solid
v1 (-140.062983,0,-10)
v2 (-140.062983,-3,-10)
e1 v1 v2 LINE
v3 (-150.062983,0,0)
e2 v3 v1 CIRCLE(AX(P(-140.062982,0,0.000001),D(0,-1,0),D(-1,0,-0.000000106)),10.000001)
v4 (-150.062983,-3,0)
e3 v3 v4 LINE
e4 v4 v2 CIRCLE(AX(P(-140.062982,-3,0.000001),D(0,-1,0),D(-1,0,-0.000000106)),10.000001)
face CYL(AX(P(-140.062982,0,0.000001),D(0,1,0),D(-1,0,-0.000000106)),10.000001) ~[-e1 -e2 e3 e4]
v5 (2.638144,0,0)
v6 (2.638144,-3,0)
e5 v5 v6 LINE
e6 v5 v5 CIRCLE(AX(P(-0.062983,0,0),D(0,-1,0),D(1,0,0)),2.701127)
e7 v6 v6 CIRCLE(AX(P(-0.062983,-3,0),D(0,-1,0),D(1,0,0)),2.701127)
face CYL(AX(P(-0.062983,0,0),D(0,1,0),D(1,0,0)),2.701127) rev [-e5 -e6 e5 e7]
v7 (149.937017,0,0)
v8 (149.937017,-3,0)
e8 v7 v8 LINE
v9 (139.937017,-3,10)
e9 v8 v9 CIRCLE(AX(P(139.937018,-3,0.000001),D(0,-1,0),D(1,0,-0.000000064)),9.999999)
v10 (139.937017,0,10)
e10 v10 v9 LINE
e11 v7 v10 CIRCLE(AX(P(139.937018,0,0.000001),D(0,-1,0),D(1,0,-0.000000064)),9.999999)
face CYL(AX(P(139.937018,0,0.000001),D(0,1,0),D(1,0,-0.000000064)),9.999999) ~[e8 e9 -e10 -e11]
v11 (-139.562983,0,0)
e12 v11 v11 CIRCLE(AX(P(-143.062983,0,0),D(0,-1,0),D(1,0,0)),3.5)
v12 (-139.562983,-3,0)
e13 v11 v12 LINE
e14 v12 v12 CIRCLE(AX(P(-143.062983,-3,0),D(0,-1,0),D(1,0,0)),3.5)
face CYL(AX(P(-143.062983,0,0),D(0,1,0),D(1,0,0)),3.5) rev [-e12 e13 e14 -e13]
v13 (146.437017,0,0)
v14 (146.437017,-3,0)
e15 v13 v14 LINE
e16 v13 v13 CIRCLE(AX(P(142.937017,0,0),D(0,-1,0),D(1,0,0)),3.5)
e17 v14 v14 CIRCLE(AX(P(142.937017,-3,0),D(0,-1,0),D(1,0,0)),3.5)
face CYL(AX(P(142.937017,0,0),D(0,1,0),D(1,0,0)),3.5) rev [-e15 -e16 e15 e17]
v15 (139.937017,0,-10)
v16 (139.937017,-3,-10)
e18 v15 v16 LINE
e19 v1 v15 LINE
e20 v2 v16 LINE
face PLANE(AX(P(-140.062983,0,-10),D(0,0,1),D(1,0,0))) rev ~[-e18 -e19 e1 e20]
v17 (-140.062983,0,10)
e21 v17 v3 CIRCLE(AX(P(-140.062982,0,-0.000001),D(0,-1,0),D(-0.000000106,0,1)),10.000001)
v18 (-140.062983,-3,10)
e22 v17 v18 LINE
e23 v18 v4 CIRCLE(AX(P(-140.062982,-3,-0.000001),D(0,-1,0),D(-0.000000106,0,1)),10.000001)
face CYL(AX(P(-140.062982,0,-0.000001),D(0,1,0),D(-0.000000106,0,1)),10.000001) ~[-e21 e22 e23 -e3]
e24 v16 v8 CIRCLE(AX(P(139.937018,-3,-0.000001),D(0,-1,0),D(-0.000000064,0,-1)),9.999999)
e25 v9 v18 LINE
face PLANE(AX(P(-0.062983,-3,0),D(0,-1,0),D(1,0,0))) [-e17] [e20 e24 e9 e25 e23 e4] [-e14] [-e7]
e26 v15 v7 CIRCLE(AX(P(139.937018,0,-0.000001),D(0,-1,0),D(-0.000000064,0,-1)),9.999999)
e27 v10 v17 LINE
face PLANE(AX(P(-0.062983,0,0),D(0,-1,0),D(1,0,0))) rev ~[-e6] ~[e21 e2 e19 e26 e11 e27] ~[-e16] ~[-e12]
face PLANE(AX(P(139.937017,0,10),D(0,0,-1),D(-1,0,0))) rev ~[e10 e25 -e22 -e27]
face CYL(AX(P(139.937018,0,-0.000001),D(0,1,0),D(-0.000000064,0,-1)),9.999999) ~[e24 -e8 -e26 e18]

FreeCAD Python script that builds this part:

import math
import FreeCAD as App
import Part
import Sketcher

V = App.Vector
Q = App.Units.Quantity

doc = App.newDocument("Part")
params = doc.addObject("Spreadsheet::Sheet", "Params")
for row, (alias, value) in enumerate([
    ("sketch1_diameter", "7 mm"),
    ("sketch1_radius", "10.000001 mm"),
    ("sketch1_width", "280 mm"),
    ("pad1_length", "3 mm"),
], start=1):
    params.set(f"A{row}", alias)
    params.set(f"B{row}", "=" + value)
    params.setAlias(f"B{row}", alias)

body = doc.addObject("PartDesign::Body", "Body")

# Sketch on XZ plane
sketch1 = body.newObject("Sketcher::SketchObject", "Sketch")
sketch1.AttachmentSupport = (doc.getObject("XZ_Plane"), [""])
sketch1.MapMode = "FlatFace"
sketch1.addGeometry(Part.LineSegment(V(139.937017, 10, 0), V(-140.062983, 10, 0)), False)
sketch1.addGeometry(Part.ArcOfCircle(Part.Circle(V(-140.062982, -0.000001, 0), V(0, 0, 1), 10.000001), math.radians(90.000006), math.radians(179.999994)), False)
sketch1.addGeometry(Part.ArcOfCircle(Part.Circle(V(-140.062982, 0.000001, 0), V(0, 0, 1), 10.000001), math.radians(-179.999994), math.radians(-90.000006)), False)
sketch1.addGeometry(Part.LineSegment(V(-140.062983, -10, 0), V(139.937017, -10, 0)), False)
sketch1.addGeometry(Part.ArcOfCircle(Part.Circle(V(139.937018, -0.000001, 0), V(0, 0, 1), 9.999999), math.radians(-90.000004), math.radians(0.000004)), False)
sketch1.addGeometry(Part.ArcOfCircle(Part.Circle(V(139.937018, 0.000001, 0), V(0, 0, 1), 9.999999), math.radians(-0.000004), math.radians(90.000004)), False)
sketch1.addGeometry(Part.Circle(V(-143.062983, 0, 0), V(0, 0, 1), 3.5), False)
sketch1.addGeometry(Part.Circle(V(-0.062983, 0, 0), V(0, 0, 1), 2.701127), False)
sketch1.addGeometry(Part.Circle(V(142.937017, 0, 0), V(0, 0, 1), 3.5), False)
sketch1.addConstraint(Sketcher.Constraint("Tangent", 0, 2, 1, 1))
sketch1.addConstraint(Sketcher.Constraint("Tangent", 1, 2, 2, 1))
sketch1.addConstraint(Sketcher.Constraint("Tangent", 2, 2, 3, 1))
sketch1.addConstraint(Sketcher.Constraint("Tangent", 3, 2, 4, 1))
sketch1.addConstraint(Sketcher.Constraint("Tangent", 4, 2, 5, 1))
sketch1.addConstraint(Sketcher.Constraint("Tangent", 5, 2, 0, 1))
sketch1.addConstraint(Sketcher.Constraint("Horizontal", 0))
sketch1.addConstraint(Sketcher.Constraint("Horizontal", 3))
sketch1.addConstraint(Sketcher.Constraint("Equal", 1, 2))
sketch1.addConstraint(Sketcher.Constraint("Equal", 2, 4))
sketch1.addConstraint(Sketcher.Constraint("Equal", 6, 8))
sketch1.addConstraint(Sketcher.Constraint("PointOnObject", 1, 3, -1))
sketch1.addConstraint(Sketcher.Constraint("PointOnObject", 6, 3, -1))
sketch1.addConstraint(Sketcher.Constraint("PointOnObject", 7, 3, -1))
sketch1.addConstraint(Sketcher.Constraint("PointOnObject", 8, 3, -1))
sketch1.addConstraint(Sketcher.Constraint("PointOnObject", 1, 2, -1))
sketch1.addConstraint(Sketcher.Constraint("PointOnObject", 4, 2, -1))
sketch1.addConstraint(Sketcher.Constraint("Diameter", 6, Q("7 mm")))
sketch1.addConstraint(Sketcher.Constraint("Radius", 1, Q("10.000001 mm")))
sketch1.addConstraint(Sketcher.Constraint("DistanceX", 0, 2, 0, 1, Q("280 mm")))
sketch1.addConstraint(Sketcher.Constraint("DistanceX", 6, 3, 1, 3, Q("3.000001 mm")))
sketch1.addConstraint(Sketcher.Constraint("DistanceX", 1, 3, 7, 3, Q("139.999999 mm")))
sketch1.addConstraint(Sketcher.Constraint("DistanceX", 4, 3, 8, 3, Q("2.999999 mm")))
sketch1.addConstraint(Sketcher.Constraint("Diameter", 7, Q("5.402254 mm")))
sketch1.addConstraint(Sketcher.Constraint("DistanceX", 1, 3, -1, 1, Q("140.062982 mm")))
sketch1.setExpression("Constraints[17]", "Params.sketch1_diameter")
sketch1.setExpression("Constraints[18]", "Params.sketch1_radius")
sketch1.setExpression("Constraints[19]", "Params.sketch1_width")
pad1 = body.newObject("PartDesign::Pad", "Pad")
pad1.Profile = sketch1
pad1.setExpression("Length", "Params.pad1_length")

doc.recompute()
